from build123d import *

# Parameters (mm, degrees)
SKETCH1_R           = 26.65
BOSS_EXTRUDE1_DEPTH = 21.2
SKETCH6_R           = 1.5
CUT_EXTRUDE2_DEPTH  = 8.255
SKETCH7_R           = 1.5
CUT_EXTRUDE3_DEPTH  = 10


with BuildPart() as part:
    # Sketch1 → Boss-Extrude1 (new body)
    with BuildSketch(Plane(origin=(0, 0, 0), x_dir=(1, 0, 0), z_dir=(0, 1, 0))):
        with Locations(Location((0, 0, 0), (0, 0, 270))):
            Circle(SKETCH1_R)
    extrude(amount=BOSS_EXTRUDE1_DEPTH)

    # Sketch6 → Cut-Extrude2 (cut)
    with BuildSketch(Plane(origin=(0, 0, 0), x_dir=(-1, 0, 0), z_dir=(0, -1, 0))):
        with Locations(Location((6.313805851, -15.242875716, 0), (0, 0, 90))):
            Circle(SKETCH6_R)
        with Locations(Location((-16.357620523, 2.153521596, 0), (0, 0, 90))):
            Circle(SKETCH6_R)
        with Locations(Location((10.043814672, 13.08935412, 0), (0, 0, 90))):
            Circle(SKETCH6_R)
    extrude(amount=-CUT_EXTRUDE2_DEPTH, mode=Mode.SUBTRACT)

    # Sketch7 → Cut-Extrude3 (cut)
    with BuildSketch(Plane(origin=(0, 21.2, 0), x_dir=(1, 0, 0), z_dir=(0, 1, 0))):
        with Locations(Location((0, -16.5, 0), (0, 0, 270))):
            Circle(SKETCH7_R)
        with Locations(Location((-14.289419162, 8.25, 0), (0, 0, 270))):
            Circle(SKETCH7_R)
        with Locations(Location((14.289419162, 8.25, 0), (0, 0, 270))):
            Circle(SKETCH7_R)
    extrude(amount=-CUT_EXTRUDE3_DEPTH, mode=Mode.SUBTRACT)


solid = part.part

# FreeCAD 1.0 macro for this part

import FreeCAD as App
import Part
import Sketcher
from FreeCAD import Vector
Q = App.Units.Quantity

doc = App.newDocument("Part")
body = doc.addObject("PartDesign::Body", "Body")

# Sketch on XZ plane
sketch1 = body.newObject("Sketcher::SketchObject", "Sketch")
sketch1.AttachmentSupport = (doc.getObject("XZ_Plane"), [""])
sketch1.MapMode = "FlatFace"
sketch1.addGeometry(Part.Circle(Vector(0, 0, 0), Vector(0, 0, 1), 26.65), False)
sketch1.addConstraint(Sketcher.Constraint("Coincident", 0, 3, -1, 1))
sketch1.addConstraint(Sketcher.Constraint("Diameter", 0, Q("53.3 mm")))
pad1 = body.newObject("PartDesign::Pad", "Pad")
pad1.Profile = sketch1
pad1.Length = 21.2
pad1.Reversed = True

# Sketch on XZ plane
sketch2 = body.newObject("Sketcher::SketchObject", "Sketch001")
sketch2.AttachmentSupport = (doc.getObject("XZ_Plane"), [""])
sketch2.MapMode = "FlatFace"
sketch2.addGeometry(Part.Circle(Vector(-6.313806, 15.242876, 0), Vector(0, 0, 1), 1.5), False)
sketch2.addGeometry(Part.Circle(Vector(16.357621, -2.153522, 0), Vector(0, 0, 1), 1.5), False)
sketch2.addGeometry(Part.Circle(Vector(-10.043815, -13.089354, 0), Vector(0, 0, 1), 1.5), False)
sketch2.addConstraint(Sketcher.Constraint("Equal", 0, 1))
sketch2.addConstraint(Sketcher.Constraint("Equal", 1, 2))
sketch2.addConstraint(Sketcher.Constraint("Diameter", 0, Q("3 mm")))
sketch2.addConstraint(Sketcher.Constraint("DistanceX", -1, 1, 1, 3, Q("16.357621 mm")))
sketch2.addConstraint(Sketcher.Constraint("DistanceY", 1, 3, -1, 1, Q("2.153522 mm")))
sketch2.addConstraint(Sketcher.Constraint("DistanceX", 2, 3, 0, 3, Q("3.730009 mm")))
sketch2.addConstraint(Sketcher.Constraint("DistanceY", 2, 3, 0, 3, Q("28.33223 mm")))
sketch2.addConstraint(Sketcher.Constraint("DistanceX", 0, 3, -1, 1, Q("6.313806 mm")))
sketch2.addConstraint(Sketcher.Constraint("DistanceY", -1, 1, 0, 3, Q("15.242876 mm")))
pocket1 = body.newObject("PartDesign::Pocket", "Pocket")
pocket1.Profile = sketch2
pocket1.Length = 8.255

# Sketch on XZ plane
sketch3 = body.newObject("Sketcher::SketchObject", "Sketch002")
sketch3.AttachmentSupport = (doc.getObject("XZ_Plane"), [""])
sketch3.MapMode = "FlatFace"
sketch3.AttachmentOffset = App.Placement(Vector(0, 0, -21.2), App.Rotation())
sketch3.addGeometry(Part.Circle(Vector(0, 16.5, 0), Vector(0, 0, 1), 1.5), False)
sketch3.addGeometry(Part.Circle(Vector(-14.289419, -8.25, 0), Vector(0, 0, 1), 1.5), False)
sketch3.addGeometry(Part.Circle(Vector(14.289419, -8.25, 0), Vector(0, 0, 1), 1.5), False)
sketch3.addConstraint(Sketcher.Constraint("Equal", 0, 1))
sketch3.addConstraint(Sketcher.Constraint("Equal", 1, 2))
sketch3.addConstraint(Sketcher.Constraint("Symmetric", 1, 3, 2, 3, -2))
sketch3.addConstraint(Sketcher.Constraint("PointOnObject", 0, 3, -2))
sketch3.addConstraint(Sketcher.Constraint("Diameter", 0, Q("3 mm")))
sketch3.addConstraint(Sketcher.Constraint("DistanceY", -1, 1, 0, 3, Q("16.5 mm")))
sketch3.addConstraint(Sketcher.Constraint("DistanceY", 1, 3, -1, 1, Q("8.25 mm")))
sketch3.addConstraint(Sketcher.Constraint("DistanceX", 1, 3, -1, 1, Q("14.289419 mm")))
pocket2 = body.newObject("PartDesign::Pocket", "Pocket001")
pocket2.Profile = sketch3
pocket2.Length = 10
pocket2.Reversed = True

doc.recompute()
